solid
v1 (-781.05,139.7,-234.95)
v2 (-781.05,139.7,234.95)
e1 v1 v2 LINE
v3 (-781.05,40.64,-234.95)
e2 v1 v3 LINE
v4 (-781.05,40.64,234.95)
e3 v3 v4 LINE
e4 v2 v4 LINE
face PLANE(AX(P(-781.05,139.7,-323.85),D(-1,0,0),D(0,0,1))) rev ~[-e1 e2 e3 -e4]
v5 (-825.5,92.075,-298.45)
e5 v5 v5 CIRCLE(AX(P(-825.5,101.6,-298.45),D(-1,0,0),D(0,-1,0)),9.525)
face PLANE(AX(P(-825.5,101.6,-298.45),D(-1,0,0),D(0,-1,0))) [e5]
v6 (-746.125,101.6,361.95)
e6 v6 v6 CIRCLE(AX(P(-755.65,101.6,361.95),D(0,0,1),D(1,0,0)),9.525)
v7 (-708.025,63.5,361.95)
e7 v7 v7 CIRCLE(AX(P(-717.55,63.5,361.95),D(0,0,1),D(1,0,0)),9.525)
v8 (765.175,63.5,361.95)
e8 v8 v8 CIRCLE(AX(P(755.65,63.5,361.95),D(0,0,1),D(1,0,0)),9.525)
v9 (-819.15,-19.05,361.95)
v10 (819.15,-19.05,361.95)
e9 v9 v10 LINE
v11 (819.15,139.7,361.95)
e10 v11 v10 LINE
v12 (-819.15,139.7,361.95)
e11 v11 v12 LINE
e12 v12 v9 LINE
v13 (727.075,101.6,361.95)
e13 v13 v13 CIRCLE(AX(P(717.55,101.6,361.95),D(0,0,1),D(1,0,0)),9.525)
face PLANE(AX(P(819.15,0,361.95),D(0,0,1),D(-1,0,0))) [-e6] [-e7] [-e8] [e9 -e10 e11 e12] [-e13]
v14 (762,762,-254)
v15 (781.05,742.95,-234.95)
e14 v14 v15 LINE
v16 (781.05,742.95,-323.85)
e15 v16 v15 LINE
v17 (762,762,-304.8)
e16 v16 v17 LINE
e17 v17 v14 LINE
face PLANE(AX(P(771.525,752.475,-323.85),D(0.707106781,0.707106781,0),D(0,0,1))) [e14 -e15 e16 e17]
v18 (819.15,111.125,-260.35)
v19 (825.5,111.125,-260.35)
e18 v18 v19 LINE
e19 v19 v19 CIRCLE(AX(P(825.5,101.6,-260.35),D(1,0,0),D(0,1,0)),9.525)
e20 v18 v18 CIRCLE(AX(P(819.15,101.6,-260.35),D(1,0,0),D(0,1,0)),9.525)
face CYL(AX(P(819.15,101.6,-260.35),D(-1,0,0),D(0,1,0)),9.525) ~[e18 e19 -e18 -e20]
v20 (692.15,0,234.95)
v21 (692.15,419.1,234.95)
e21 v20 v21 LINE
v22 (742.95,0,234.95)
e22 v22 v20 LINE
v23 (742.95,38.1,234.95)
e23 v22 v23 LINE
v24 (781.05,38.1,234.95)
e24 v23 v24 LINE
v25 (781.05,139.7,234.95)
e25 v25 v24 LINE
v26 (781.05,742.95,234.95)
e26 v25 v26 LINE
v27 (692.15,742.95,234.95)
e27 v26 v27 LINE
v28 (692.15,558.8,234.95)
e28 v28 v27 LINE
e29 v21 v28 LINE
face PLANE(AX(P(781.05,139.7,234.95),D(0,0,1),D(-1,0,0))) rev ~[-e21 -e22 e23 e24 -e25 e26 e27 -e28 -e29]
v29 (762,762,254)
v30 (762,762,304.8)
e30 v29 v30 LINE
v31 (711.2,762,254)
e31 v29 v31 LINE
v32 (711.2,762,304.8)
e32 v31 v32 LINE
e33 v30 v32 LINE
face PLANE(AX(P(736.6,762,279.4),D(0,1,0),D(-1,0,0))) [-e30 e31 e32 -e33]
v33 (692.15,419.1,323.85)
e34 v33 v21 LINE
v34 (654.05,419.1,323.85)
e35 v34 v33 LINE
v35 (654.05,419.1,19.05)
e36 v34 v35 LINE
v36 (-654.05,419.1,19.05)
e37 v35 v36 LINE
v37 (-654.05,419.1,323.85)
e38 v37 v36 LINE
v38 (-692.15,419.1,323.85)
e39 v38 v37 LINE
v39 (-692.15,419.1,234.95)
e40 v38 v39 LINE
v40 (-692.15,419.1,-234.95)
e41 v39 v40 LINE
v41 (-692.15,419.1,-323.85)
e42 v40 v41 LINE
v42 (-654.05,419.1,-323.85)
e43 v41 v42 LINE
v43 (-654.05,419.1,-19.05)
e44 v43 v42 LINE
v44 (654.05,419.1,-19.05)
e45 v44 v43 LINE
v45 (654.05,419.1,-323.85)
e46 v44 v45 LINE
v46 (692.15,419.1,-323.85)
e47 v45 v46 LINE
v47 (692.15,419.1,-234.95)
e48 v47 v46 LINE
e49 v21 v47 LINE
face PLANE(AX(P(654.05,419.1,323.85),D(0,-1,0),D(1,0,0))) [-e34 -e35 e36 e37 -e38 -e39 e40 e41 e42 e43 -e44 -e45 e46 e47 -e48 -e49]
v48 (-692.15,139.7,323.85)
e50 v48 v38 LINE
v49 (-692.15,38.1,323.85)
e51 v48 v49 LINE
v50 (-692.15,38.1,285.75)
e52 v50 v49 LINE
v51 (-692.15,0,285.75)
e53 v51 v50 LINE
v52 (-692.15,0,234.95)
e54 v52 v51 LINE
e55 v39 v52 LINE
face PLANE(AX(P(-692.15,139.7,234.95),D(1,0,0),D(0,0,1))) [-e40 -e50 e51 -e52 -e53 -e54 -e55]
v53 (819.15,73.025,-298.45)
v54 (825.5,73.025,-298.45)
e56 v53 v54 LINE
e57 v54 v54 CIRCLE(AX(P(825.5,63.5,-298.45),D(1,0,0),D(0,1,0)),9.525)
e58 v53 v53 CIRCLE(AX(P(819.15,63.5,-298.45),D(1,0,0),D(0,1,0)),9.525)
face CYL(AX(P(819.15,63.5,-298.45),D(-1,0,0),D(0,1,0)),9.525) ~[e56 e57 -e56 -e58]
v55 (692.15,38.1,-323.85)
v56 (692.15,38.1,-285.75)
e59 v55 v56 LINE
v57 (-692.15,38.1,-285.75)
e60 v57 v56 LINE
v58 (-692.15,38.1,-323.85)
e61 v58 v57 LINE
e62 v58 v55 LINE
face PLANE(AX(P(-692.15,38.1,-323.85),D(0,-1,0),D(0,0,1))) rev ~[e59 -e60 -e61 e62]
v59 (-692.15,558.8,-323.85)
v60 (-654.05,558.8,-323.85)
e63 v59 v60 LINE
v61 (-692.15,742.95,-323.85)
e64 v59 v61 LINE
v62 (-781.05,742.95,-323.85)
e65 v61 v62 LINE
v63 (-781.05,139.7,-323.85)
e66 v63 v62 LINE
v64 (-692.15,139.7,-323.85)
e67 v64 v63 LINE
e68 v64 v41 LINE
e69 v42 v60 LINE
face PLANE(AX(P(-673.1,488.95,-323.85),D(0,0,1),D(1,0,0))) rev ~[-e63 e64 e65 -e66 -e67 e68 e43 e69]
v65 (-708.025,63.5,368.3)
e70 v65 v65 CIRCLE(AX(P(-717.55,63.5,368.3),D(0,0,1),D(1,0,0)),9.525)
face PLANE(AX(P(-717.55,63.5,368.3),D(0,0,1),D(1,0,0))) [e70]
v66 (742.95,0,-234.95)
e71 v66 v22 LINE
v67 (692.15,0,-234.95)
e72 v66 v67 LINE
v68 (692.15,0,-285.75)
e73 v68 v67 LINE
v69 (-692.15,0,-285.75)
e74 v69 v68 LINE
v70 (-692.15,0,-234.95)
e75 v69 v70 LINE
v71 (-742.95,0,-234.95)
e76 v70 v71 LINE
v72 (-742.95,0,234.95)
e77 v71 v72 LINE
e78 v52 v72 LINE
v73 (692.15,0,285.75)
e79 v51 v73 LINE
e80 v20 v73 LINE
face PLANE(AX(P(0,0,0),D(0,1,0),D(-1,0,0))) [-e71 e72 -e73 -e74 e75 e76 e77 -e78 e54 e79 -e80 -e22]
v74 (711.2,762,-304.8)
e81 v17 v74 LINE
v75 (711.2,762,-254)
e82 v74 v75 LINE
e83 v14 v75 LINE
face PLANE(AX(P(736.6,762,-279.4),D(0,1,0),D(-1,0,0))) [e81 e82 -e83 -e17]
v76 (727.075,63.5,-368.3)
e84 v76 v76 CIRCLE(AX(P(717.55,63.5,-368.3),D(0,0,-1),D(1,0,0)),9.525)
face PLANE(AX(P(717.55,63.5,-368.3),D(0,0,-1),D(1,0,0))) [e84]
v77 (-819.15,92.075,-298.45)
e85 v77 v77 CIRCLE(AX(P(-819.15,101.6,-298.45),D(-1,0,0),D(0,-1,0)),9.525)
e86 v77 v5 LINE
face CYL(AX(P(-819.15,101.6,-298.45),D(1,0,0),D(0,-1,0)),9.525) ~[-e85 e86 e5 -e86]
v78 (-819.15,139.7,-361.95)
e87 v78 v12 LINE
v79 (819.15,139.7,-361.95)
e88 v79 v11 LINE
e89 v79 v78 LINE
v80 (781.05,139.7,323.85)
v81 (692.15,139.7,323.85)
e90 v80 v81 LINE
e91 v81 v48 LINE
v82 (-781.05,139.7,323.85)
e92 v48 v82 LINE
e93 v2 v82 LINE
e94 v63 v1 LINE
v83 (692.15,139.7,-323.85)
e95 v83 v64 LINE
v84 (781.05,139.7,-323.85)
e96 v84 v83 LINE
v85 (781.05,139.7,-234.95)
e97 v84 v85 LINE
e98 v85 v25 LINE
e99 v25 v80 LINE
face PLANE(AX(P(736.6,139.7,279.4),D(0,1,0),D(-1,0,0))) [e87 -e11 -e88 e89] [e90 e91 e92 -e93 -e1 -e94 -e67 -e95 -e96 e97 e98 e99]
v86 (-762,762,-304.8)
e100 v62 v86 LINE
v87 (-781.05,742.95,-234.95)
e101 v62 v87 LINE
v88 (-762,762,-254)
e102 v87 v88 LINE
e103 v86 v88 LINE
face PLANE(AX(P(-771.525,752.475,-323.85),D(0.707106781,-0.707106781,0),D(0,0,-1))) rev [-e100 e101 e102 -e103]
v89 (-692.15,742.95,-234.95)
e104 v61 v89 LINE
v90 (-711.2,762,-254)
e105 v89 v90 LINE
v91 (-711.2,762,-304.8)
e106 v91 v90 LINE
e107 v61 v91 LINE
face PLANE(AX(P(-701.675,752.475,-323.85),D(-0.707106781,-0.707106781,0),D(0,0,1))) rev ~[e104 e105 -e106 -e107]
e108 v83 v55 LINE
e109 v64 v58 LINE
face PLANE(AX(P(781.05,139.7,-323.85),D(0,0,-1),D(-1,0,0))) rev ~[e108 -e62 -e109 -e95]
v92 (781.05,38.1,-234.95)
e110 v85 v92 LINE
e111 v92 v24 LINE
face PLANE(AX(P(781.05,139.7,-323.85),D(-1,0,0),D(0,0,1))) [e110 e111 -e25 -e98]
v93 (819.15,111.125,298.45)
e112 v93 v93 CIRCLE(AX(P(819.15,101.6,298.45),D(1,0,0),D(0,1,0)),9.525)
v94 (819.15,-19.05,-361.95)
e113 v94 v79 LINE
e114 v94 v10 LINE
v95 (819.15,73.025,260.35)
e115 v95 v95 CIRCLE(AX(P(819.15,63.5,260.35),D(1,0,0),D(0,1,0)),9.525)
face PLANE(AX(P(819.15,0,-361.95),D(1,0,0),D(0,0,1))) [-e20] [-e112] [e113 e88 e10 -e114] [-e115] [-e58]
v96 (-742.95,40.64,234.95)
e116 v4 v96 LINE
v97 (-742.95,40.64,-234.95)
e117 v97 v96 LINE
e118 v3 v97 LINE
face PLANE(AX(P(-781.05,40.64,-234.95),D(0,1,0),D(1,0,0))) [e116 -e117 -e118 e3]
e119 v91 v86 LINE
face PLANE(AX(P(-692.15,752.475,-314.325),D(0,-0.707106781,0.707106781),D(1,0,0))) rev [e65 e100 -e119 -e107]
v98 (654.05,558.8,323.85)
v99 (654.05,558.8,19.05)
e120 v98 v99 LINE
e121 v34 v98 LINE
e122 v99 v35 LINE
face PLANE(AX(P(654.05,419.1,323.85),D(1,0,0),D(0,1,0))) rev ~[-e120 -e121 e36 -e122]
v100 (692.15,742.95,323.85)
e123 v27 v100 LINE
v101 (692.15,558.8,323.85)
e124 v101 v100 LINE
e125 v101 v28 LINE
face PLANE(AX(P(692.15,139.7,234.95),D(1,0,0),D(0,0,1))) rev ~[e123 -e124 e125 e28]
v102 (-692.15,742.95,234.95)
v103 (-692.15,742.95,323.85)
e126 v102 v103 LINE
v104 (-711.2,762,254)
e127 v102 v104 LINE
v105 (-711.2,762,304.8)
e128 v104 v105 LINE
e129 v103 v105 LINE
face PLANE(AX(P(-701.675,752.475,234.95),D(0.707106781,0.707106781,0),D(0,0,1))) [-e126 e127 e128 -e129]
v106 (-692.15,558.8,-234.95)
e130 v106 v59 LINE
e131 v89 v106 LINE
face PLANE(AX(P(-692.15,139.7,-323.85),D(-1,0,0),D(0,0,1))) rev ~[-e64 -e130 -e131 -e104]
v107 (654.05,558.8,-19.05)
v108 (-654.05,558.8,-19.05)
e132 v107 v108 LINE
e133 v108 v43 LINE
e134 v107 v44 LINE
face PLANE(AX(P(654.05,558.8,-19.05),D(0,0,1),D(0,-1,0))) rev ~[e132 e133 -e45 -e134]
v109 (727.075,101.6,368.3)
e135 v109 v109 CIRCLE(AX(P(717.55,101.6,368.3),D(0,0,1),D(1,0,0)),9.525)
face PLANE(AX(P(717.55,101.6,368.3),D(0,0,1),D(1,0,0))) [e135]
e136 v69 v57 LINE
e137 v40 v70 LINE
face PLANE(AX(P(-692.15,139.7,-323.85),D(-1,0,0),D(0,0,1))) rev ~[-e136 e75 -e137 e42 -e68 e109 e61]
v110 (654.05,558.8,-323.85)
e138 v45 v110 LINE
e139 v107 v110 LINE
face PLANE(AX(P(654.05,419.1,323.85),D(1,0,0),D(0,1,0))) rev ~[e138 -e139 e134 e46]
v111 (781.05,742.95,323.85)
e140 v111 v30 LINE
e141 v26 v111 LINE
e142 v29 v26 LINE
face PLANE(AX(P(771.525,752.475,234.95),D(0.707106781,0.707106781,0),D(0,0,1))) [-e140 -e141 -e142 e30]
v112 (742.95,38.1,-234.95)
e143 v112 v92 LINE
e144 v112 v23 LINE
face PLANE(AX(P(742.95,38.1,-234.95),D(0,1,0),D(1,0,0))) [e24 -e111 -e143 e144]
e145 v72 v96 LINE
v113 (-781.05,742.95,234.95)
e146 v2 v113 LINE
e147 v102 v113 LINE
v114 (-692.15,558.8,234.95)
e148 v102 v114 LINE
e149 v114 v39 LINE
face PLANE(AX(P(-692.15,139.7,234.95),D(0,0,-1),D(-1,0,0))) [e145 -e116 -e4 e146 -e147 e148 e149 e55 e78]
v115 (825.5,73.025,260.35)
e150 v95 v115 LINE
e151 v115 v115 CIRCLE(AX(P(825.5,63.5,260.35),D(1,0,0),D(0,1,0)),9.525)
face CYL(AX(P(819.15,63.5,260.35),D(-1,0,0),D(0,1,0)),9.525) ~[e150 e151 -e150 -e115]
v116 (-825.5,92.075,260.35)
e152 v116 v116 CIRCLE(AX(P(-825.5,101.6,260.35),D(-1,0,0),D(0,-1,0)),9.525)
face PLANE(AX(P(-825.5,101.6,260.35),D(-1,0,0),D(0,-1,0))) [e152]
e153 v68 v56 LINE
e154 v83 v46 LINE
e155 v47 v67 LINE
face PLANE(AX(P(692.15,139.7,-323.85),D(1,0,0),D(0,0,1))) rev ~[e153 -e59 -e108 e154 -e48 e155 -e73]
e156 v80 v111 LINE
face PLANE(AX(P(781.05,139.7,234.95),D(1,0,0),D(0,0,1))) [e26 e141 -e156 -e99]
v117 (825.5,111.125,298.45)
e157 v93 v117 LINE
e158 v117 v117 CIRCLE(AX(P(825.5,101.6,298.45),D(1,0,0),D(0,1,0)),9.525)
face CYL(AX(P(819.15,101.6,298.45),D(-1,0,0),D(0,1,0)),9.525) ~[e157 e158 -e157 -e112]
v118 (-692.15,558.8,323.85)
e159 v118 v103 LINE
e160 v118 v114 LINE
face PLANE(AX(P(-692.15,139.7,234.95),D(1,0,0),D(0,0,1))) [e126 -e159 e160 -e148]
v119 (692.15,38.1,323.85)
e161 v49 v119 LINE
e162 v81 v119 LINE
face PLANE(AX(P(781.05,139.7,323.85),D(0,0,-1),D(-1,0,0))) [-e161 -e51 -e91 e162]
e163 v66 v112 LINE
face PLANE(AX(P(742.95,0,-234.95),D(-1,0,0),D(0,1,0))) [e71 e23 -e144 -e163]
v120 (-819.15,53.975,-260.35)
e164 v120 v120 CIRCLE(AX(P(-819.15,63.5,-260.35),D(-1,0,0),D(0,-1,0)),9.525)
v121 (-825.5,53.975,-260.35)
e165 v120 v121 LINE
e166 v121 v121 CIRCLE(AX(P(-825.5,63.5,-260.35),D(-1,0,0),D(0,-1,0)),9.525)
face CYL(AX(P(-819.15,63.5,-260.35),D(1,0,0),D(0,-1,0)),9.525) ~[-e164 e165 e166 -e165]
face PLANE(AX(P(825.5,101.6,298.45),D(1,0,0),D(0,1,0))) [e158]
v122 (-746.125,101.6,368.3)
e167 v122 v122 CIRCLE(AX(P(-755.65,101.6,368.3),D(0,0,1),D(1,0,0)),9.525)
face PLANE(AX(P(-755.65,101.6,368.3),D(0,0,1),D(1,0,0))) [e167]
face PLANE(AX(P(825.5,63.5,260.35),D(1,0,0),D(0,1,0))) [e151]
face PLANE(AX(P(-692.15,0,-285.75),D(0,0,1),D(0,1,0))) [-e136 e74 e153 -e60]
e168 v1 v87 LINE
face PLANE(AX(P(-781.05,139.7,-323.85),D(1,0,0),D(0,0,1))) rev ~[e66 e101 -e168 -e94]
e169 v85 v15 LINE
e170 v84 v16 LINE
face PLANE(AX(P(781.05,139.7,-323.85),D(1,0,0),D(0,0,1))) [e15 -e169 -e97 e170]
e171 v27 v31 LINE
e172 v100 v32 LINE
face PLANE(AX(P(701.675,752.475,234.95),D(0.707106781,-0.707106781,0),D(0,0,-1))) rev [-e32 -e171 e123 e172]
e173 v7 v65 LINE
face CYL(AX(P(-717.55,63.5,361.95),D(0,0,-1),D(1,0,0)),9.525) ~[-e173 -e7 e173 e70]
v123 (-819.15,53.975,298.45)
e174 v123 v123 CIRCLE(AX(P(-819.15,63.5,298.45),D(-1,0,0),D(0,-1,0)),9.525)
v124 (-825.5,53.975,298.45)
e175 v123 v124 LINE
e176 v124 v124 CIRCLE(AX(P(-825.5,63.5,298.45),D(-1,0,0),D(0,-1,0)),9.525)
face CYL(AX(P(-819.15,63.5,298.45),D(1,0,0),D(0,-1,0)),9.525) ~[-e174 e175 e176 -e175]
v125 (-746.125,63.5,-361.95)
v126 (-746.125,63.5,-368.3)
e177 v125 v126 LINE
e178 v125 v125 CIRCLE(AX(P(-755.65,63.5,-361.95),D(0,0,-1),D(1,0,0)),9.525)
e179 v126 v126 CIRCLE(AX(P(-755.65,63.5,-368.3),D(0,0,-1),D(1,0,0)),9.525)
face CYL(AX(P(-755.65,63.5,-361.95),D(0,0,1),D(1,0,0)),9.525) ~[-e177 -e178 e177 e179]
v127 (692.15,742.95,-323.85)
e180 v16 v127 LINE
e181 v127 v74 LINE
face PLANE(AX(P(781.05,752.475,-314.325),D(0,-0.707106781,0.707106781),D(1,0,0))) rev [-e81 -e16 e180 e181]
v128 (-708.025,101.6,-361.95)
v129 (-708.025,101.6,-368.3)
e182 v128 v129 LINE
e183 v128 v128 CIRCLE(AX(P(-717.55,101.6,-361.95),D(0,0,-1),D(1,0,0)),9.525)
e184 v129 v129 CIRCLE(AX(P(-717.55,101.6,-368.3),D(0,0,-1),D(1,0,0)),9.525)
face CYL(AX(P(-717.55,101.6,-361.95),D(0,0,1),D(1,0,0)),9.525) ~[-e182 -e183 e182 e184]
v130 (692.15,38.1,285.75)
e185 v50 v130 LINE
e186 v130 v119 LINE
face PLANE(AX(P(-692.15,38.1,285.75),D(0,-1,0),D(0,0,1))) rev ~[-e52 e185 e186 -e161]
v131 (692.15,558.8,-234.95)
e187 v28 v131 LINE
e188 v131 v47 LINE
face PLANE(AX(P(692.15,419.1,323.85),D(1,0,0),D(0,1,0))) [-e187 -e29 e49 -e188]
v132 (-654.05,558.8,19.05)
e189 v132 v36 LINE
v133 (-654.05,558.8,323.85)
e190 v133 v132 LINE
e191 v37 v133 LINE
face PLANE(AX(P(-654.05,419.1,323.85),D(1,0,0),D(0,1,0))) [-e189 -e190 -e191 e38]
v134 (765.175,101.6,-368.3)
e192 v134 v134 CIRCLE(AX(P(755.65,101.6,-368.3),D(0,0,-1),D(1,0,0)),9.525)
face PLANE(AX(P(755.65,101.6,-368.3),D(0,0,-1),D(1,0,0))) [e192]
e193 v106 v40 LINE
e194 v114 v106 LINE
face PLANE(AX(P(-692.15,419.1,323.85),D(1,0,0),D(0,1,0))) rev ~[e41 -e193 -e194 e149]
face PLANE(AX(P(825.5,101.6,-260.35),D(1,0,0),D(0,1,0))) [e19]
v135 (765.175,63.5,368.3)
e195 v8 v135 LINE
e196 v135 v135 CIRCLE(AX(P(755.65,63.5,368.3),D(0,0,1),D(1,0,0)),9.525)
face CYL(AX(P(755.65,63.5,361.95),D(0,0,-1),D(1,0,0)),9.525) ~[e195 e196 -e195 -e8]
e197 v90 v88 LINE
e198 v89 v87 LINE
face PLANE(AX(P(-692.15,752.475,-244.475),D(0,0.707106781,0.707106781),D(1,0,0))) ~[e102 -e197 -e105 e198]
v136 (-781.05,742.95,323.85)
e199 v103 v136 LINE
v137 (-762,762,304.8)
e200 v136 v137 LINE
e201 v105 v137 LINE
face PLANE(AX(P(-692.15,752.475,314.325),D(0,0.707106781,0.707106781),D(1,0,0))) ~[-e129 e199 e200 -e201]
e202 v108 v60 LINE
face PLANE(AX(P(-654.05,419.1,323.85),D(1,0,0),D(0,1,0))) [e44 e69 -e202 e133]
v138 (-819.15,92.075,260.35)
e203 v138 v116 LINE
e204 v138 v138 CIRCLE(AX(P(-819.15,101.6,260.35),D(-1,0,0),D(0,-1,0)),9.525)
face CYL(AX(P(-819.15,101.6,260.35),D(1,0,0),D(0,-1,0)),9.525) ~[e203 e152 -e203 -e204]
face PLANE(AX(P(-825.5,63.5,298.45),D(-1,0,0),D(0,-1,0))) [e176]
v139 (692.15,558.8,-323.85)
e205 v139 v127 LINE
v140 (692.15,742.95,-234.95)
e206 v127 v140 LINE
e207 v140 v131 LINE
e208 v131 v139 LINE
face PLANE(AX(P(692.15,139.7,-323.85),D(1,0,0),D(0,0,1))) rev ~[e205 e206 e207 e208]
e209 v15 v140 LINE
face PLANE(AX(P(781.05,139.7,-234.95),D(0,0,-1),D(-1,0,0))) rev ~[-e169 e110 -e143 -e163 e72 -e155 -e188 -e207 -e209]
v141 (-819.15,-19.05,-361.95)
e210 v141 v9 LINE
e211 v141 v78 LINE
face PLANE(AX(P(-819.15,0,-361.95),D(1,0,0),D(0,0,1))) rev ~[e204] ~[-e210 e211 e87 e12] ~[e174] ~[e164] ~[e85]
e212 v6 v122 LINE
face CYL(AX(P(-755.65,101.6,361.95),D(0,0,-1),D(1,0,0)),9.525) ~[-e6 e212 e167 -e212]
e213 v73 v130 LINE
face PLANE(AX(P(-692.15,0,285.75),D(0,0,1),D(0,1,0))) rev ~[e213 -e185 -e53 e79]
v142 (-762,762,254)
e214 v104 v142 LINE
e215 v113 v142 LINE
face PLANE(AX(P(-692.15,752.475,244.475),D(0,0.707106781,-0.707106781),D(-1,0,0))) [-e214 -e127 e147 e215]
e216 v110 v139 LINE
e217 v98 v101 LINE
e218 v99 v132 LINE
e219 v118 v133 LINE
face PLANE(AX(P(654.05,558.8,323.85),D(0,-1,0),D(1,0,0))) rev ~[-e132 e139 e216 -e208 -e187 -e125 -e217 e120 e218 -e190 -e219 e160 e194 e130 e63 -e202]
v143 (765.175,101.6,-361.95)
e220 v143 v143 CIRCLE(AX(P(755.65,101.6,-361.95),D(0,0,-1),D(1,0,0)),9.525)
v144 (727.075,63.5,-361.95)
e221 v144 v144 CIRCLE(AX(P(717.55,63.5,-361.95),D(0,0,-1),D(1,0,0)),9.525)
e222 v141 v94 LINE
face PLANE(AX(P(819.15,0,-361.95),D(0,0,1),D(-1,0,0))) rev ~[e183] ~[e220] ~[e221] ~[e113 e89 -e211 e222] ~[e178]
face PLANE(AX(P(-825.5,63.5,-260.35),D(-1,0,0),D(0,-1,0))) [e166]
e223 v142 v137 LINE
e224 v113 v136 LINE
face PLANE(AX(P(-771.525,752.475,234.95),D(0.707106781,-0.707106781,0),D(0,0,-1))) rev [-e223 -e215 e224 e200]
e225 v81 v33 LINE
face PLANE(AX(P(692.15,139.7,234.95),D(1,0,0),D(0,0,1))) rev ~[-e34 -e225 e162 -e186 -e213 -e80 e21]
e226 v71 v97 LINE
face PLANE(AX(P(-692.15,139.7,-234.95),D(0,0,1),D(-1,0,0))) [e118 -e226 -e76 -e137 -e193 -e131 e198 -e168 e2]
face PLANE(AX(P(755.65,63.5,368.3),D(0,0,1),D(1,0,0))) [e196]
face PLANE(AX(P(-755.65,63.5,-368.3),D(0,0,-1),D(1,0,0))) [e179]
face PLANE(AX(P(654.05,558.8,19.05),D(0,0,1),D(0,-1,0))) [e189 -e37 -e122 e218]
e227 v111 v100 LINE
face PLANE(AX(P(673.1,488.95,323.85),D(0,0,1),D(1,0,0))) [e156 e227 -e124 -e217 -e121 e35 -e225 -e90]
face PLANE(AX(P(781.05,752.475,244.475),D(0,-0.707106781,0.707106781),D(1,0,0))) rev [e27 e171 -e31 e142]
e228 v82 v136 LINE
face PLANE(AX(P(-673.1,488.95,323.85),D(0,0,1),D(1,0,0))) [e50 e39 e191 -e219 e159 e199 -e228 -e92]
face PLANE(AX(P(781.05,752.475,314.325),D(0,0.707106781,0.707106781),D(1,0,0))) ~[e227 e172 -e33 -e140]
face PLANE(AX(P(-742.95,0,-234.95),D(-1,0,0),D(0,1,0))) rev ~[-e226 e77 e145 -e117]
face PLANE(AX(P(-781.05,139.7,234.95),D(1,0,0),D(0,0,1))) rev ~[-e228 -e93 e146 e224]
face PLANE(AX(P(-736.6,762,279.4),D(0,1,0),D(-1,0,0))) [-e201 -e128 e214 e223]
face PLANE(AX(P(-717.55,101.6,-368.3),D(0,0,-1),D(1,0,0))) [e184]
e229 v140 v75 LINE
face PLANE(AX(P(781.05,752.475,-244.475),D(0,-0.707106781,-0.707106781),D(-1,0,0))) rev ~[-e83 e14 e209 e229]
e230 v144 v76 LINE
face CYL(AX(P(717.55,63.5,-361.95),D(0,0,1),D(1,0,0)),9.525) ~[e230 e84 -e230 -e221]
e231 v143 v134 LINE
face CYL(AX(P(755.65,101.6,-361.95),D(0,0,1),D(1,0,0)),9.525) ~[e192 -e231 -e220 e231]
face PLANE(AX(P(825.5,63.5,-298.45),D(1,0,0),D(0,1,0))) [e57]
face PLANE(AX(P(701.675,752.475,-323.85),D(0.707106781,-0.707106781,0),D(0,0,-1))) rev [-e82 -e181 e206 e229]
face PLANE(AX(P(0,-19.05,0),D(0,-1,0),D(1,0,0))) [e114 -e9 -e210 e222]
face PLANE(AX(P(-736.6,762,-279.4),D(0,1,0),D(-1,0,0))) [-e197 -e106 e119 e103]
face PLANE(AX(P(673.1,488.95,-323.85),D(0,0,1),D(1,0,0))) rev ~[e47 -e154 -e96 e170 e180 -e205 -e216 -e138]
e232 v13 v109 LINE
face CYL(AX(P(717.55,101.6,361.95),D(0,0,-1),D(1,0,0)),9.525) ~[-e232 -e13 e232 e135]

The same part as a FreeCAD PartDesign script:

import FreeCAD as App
import Part
import Sketcher
Q = App.Units.Quantity


def edges_at(feature, points):
    """Names of the edges that pass closest to the given points."""
    edges = feature.Shape.Edges
    near = lambda p: min(range(len(edges)), key=lambda i: edges[i].distToShape(Part.Vertex(*p))[0])
    return sorted({f"Edge{near(p) + 1}" for p in points})

doc = App.newDocument("Part")
params = doc.addObject("Spreadsheet::Sheet", "Params")
for row, (alias, value) in enumerate([
    ("sketch1_width", "64.5 in"),
    ("sketch1_height", "28.5 in"),
    ("pad1_length", "0.75 in"),
    ("sketch2_width", "64.5 in"),
    ("sketch2_height", "28.5 in"),
    ("pad2_length", "5.5 in"),
    ("sketch3_width", "61.5 in"),
    ("sketch3_height", "25.5 in"),
    ("pocket1_length", "5.5 in"),
    ("sketch4_width", "3.5 in"),
    ("pad3_length", "5.5 in"),
    ("pad3_length2", "24.5 in"),
    ("sketch5_width", "1.5 in"),
    ("sketch5_height", "5.5 in"),
    ("pad4_length", "25.5 in"),
    ("sketch6_width", "1.5 in"),
    ("sketch6_height", "5.5 in"),
    ("pad5_length", "25.5 in"),
    ("chamfer_size", "0.75 in"),
    ("sketch7_diameter", "0.75 in"),
    ("pad6_length", "0.25 in"),
    ("pad6_length2", "3 in"),
    ("sketch8_width", "5.5 in"),
    ("sketch8_height", "1.5 in"),
    ("pad7_length", "51.5 in"),
    ("sketch9_width", "1.5 in"),
    ("pad8_length", "54.5 in"),
    ("sketch10_width", "1.5 in"),
    ("pad9_length", "18.5 in"),
    ("sketch11_width", "1.5 in"),
    ("sketch11_height", "1.6 in"),
    ("pad10_length", "20.5 in"),
    ("sketch12_width", "1.5 in"),
    ("pad11_length", "54.5 in"),
    ("sketch13_diameter", "0.75 in"),
    ("pad12_length", "0.25 in"),
    ("pad12_length2", "3 in"),
    ("sketch14_diameter", "0.75 in"),
    ("pad13_length", "0.25 in"),
    ("pad13_length2", "3 in"),
    ("sketch15_diameter", "0.75 in"),
    ("pad14_length", "0.25 in"),
    ("pad14_length2", "3 in"),
    ("sketch16_diameter", "0.75 in"),
    ("pad15_length", "0.25 in"),
    ("pad15_length2", "3 in"),
], start=1):
    params.set(f"A{row}", alias)
    params.set(f"B{row}", "=" + value)
    params.setAlias(f"B{row}", alias)

body = doc.addObject("PartDesign::Body", "Body")

# Sketch on XZ plane
sketch1 = doc.addObject("Sketcher::SketchObject", "Sketch")
body.addObject(sketch1)
sketch1.AttachmentSupport = (doc.XZ_Plane, [""])
sketch1.MapMode = "FlatFace"
sketch1.addGeometry(Part.LineSegment(App.Vector(-819, 362, 0), App.Vector(-819, -362, 0)), False)
sketch1.addGeometry(Part.LineSegment(App.Vector(-819, -362, 0), App.Vector(819, -362, 0)), False)
sketch1.addGeometry(Part.LineSegment(App.Vector(819, -362, 0), App.Vector(819, 362, 0)), False)
sketch1.addGeometry(Part.LineSegment(App.Vector(819, 362, 0), App.Vector(-819, 362, 0)), False)
sketch1.addConstraint(Sketcher.Constraint("Coincident", 0, 2, 1, 1))
sketch1.addConstraint(Sketcher.Constraint("Coincident", 1, 2, 2, 1))
sketch1.addConstraint(Sketcher.Constraint("Coincident", 2, 2, 3, 1))
sketch1.addConstraint(Sketcher.Constraint("Coincident", 3, 2, 0, 1))
sketch1.addConstraint(Sketcher.Constraint("Vertical", 0))
sketch1.addConstraint(Sketcher.Constraint("Horizontal", 1))
sketch1.addConstraint(Sketcher.Constraint("Vertical", 2))
sketch1.addConstraint(Sketcher.Constraint("Horizontal", 3))
sketch1.addConstraint(Sketcher.Constraint("Symmetric", 0, 2, 2, 2, -1, 1))
sketch1.addConstraint(Sketcher.Constraint("DistanceX", 1, 1, 1, 2, Q("64.5 in")))
sketch1.addConstraint(Sketcher.Constraint("DistanceY", 0, 2, 0, 1, Q("28.5 in")))
sketch1.setExpression("Constraints[9]", "Params.sketch1_width")
sketch1.setExpression("Constraints[10]", "Params.sketch1_height")
pad1 = doc.addObject("PartDesign::Pad", "Pad")
body.addObject(pad1)
pad1.Profile = sketch1
pad1.setExpression("Length", "Params.pad1_length")

# Sketch on XZ plane
sketch2 = doc.addObject("Sketcher::SketchObject", "Sketch001")
body.addObject(sketch2)
sketch2.AttachmentSupport = (doc.XZ_Plane, [""])
sketch2.MapMode = "FlatFace"
sketch2.addGeometry(Part.LineSegment(App.Vector(819, 362, 0), App.Vector(819, -362, 0)), False)
sketch2.addGeometry(Part.LineSegment(App.Vector(819, -362, 0), App.Vector(-819, -362, 0)), False)
sketch2.addGeometry(Part.LineSegment(App.Vector(-819, -362, 0), App.Vector(-819, 362, 0)), False)
sketch2.addGeometry(Part.LineSegment(App.Vector(-819, 362, 0), App.Vector(819, 362, 0)), False)
sketch2.addConstraint(Sketcher.Constraint("Coincident", 0, 2, 1, 1))
sketch2.addConstraint(Sketcher.Constraint("Coincident", 1, 2, 2, 1))
sketch2.addConstraint(Sketcher.Constraint("Coincident", 2, 2, 3, 1))
sketch2.addConstraint(Sketcher.Constraint("Coincident", 3, 2, 0, 1))
sketch2.addConstraint(Sketcher.Constraint("Vertical", 0))
sketch2.addConstraint(Sketcher.Constraint("Horizontal", 1))
sketch2.addConstraint(Sketcher.Constraint("Vertical", 2))
sketch2.addConstraint(Sketcher.Constraint("Horizontal", 3))
sketch2.addConstraint(Sketcher.Constraint("Symmetric", 0, 2, 2, 2, -1, 1))
sketch2.addConstraint(Sketcher.Constraint("DistanceX", 1, 2, 1, 1, Q("64.5 in")))
sketch2.addConstraint(Sketcher.Constraint("DistanceY", 0, 2, 0, 1, Q("28.5 in")))
sketch2.setExpression("Constraints[9]", "Params.sketch2_width")
sketch2.setExpression("Constraints[10]", "Params.sketch2_height")
pad2 = doc.addObject("PartDesign::Pad", "Pad001")
body.addObject(pad2)
pad2.Profile = sketch2
pad2.setExpression("Length", "Params.pad2_length")
pad2.Reversed = True

# Sketch on XZ plane
sketch3 = doc.addObject("Sketcher::SketchObject", "Sketch002")
body.addObject(sketch3)
sketch3.AttachmentSupport = (doc.XZ_Plane, [""])
sketch3.MapMode = "FlatFace"
sketch3.AttachmentOffset = App.Placement(App.Vector(0, 0, -5.5 * 25.4), App.Rotation())
sketch3.addGeometry(Part.LineSegment(App.Vector(781, 324, 0), App.Vector(781, -324, 0)), False)
sketch3.addGeometry(Part.LineSegment(App.Vector(781, -324, 0), App.Vector(-781, -324, 0)), False)
sketch3.addGeometry(Part.LineSegment(App.Vector(-781, -324, 0), App.Vector(-781, 324, 0)), False)
sketch3.addGeometry(Part.LineSegment(App.Vector(-781, 324, 0), App.Vector(781, 324, 0)), False)
sketch3.addConstraint(Sketcher.Constraint("Coincident", 0, 2, 1, 1))
sketch3.addConstraint(Sketcher.Constraint("Coincident", 1, 2, 2, 1))
sketch3.addConstraint(Sketcher.Constraint("Coincident", 2, 2, 3, 1))
sketch3.addConstraint(Sketcher.Constraint("Coincident", 3, 2, 0, 1))
sketch3.addConstraint(Sketcher.Constraint("Vertical", 0))
sketch3.addConstraint(Sketcher.Constraint("Horizontal", 1))
sketch3.addConstraint(Sketcher.Constraint("Vertical", 2))
sketch3.addConstraint(Sketcher.Constraint("Horizontal", 3))
sketch3.addConstraint(Sketcher.Constraint("Symmetric", 0, 2, 2, 2, -1, 1))
sketch3.addConstraint(Sketcher.Constraint("DistanceX", 1, 2, 1, 1, Q("61.5 in")))
sketch3.addConstraint(Sketcher.Constraint("DistanceY", 0, 2, 0, 1, Q("25.5 in")))
sketch3.setExpression("Constraints[9]", "Params.sketch3_width")
sketch3.setExpression("Constraints[10]", "Params.sketch3_height")
pocket1 = doc.addObject("PartDesign::Pocket", "Pocket")
body.addObject(pocket1)
pocket1.Profile = sketch3
pocket1.setExpression("Length", "Params.pocket1_length")
pocket1.Reversed = True

# Sketch on XZ plane
sketch4 = doc.addObject("Sketcher::SketchObject", "Sketch003")
body.addObject(sketch4)
sketch4.AttachmentSupport = (doc.XZ_Plane, [""])
sketch4.MapMode = "FlatFace"
sketch4.AttachmentOffset = App.Placement(App.Vector(0, 0, -5.5 * 25.4), App.Rotation())
sketch4.addGeometry(Part.LineSegment(App.Vector(781, 324, 0), App.Vector(781, 235, 0)), False)
sketch4.addGeometry(Part.LineSegment(App.Vector(781, 235, 0), App.Vector(692, 235, 0)), False)
sketch4.addGeometry(Part.LineSegment(App.Vector(692, 235, 0), App.Vector(692, 324, 0)), False)
sketch4.addGeometry(Part.LineSegment(App.Vector(692, 324, 0), App.Vector(781, 324, 0)), False)
sketch4.addGeometry(Part.LineSegment(App.Vector(-692, 324, 0), App.Vector(-692, 235, 0)), False)
sketch4.addGeometry(Part.LineSegment(App.Vector(-692, 235, 0), App.Vector(-781, 235, 0)), False)
sketch4.addGeometry(Part.LineSegment(App.Vector(-781, 235, 0), App.Vector(-781, 324, 0)), False)
sketch4.addGeometry(Part.LineSegment(App.Vector(-781, 324, 0), App.Vector(-692, 324, 0)), False)
sketch4.addGeometry(Part.LineSegment(App.Vector(-692, -235, 0), App.Vector(-692, -324, 0)), False)
sketch4.addGeometry(Part.LineSegment(App.Vector(-692, -324, 0), App.Vector(-781, -324, 0)), False)
sketch4.addGeometry(Part.LineSegment(App.Vector(-781, -324, 0), App.Vector(-781, -235, 0)), False)
sketch4.addGeometry(Part.LineSegment(App.Vector(-781, -235, 0), App.Vector(-692, -235, 0)), False)
sketch4.addGeometry(Part.LineSegment(App.Vector(781, -235, 0), App.Vector(781, -324, 0)), False)
sketch4.addGeometry(Part.LineSegment(App.Vector(781, -324, 0), App.Vector(692, -324, 0)), False)
sketch4.addGeometry(Part.LineSegment(App.Vector(692, -324, 0), App.Vector(692, -235, 0)), False)
sketch4.addGeometry(Part.LineSegment(App.Vector(692, -235, 0), App.Vector(781, -235, 0)), False)
sketch4.addConstraint(Sketcher.Constraint("Coincident", 0, 2, 1, 1))
sketch4.addConstraint(Sketcher.Constraint("Coincident", 1, 2, 2, 1))
sketch4.addConstraint(Sketcher.Constraint("Coincident", 2, 2, 3, 1))
sketch4.addConstraint(Sketcher.Constraint("Coincident", 3, 2, 0, 1))
sketch4.addConstraint(Sketcher.Constraint("Coincident", 4, 2, 5, 1))
sketch4.addConstraint(Sketcher.Constraint("Coincident", 5, 2, 6, 1))
sketch4.addConstraint(Sketcher.Constraint("Coincident", 6, 2, 7, 1))
sketch4.addConstraint(Sketcher.Constraint("Coincident", 7, 2, 4, 1))
sketch4.addConstraint(Sketcher.Constraint("Coincident", 8, 2, 9, 1))
sketch4.addConstraint(Sketcher.Constraint("Coincident", 9, 2, 10, 1))
sketch4.addConstraint(Sketcher.Constraint("Coincident", 10, 2, 11, 1))
sketch4.addConstraint(Sketcher.Constraint("Coincident", 11, 2, 8, 1))
sketch4.addConstraint(Sketcher.Constraint("Coincident", 12, 2, 13, 1))
sketch4.addConstraint(Sketcher.Constraint("Coincident", 13, 2, 14, 1))
sketch4.addConstraint(Sketcher.Constraint("Coincident", 14, 2, 15, 1))
sketch4.addConstraint(Sketcher.Constraint("Coincident", 15, 2, 12, 1))
sketch4.addConstraint(Sketcher.Constraint("Vertical", 0))
sketch4.addConstraint(Sketcher.Constraint("Horizontal", 1))
sketch4.addConstraint(Sketcher.Constraint("Vertical", 2))
sketch4.addConstraint(Sketcher.Constraint("Horizontal", 3))
sketch4.addConstraint(Sketcher.Constraint("Vertical", 4))
sketch4.addConstraint(Sketcher.Constraint("Horizontal", 5))
sketch4.addConstraint(Sketcher.Constraint("Vertical", 6))
sketch4.addConstraint(Sketcher.Constraint("Horizontal", 7))
sketch4.addConstraint(Sketcher.Constraint("Vertical", 8))
sketch4.addConstraint(Sketcher.Constraint("Horizontal", 9))
sketch4.addConstraint(Sketcher.Constraint("Vertical", 10))
sketch4.addConstraint(Sketcher.Constraint("Horizontal", 11))
sketch4.addConstraint(Sketcher.Constraint("Vertical", 12))
sketch4.addConstraint(Sketcher.Constraint("Horizontal", 13))
sketch4.addConstraint(Sketcher.Constraint("Vertical", 14))
sketch4.addConstraint(Sketcher.Constraint("Horizontal", 15))
sketch4.addConstraint(Sketcher.Constraint("Symmetric", 2, 2, 8, 2, -1, 1))
sketch4.addConstraint(Sketcher.Constraint("Symmetric", 0, 2, 10, 2, -1, 1))
sketch4.addConstraint(Sketcher.Constraint("Symmetric", 6, 2, 12, 2, -1, 1))
sketch4.addConstraint(Sketcher.Constraint("Symmetric", 4, 2, 14, 2, -1, 1))
sketch4.addConstraint(Sketcher.Constraint("Symmetric", 1, 2, 4, 2, -2))
sketch4.addConstraint(Sketcher.Constraint("Symmetric", 3, 2, 6, 2, -2))
sketch4.addConstraint(Sketcher.Constraint("Equal", 15, 0))
sketch4.addConstraint(Sketcher.Constraint("DistanceX", 1, 2, 1, 1, Q("3.5 in")))
sketch4.addConstraint(Sketcher.Constraint("DistanceX", 4, 2, 0, 2, Q("58 in")))
sketch4.addConstraint(Sketcher.Constraint("DistanceY", 8, 2, 4, 2, Q("22 in")))
sketch4.setExpression("Constraints[39]", "Params.sketch4_width")
pad3 = doc.addObject("PartDesign::Pad", "Pad002")
body.addObject(pad3)
pad3.Profile = sketch4
pad3.Type = "TwoLengths"
pad3.setExpression("Length", "Params.pad3_length")
pad3.setExpression("Length2", "Params.pad3_length2")

# Sketch on XY plane
sketch5 = doc.addObject("Sketcher::SketchObject", "Sketch004")
body.addObject(sketch5)
sketch5.AttachmentSupport = (doc.XY_Plane, [""])
sketch5.MapMode = "FlatFace"
sketch5.AttachmentOffset = App.Placement(App.Vector(0, 0, 12.75 * 25.4), App.Rotation())
sketch5.addGeometry(Part.LineSegment(App.Vector(-692, 559, 0), App.Vector(-692, 419, 0)), False)
sketch5.addGeometry(Part.LineSegment(App.Vector(-692, 419, 0), App.Vector(-654, 419, 0)), False)
sketch5.addGeometry(Part.LineSegment(App.Vector(-654, 419, 0), App.Vector(-654, 559, 0)), False)
sketch5.addGeometry(Part.LineSegment(App.Vector(-654, 559, 0), App.Vector(-692, 559, 0)), False)
sketch5.addConstraint(Sketcher.Constraint("Coincident", 0, 2, 1, 1))
sketch5.addConstraint(Sketcher.Constraint("Coincident", 1, 2, 2, 1))
sketch5.addConstraint(Sketcher.Constraint("Coincident", 2, 2, 3, 1))
sketch5.addConstraint(Sketcher.Constraint("Coincident", 3, 2, 0, 1))
sketch5.addConstraint(Sketcher.Constraint("Vertical", 0))
sketch5.addConstraint(Sketcher.Constraint("Horizontal", 1))
sketch5.addConstraint(Sketcher.Constraint("Vertical", 2))
sketch5.addConstraint(Sketcher.Constraint("Horizontal", 3))
sketch5.addConstraint(Sketcher.Constraint("DistanceX", 1, 1, 1, 2, Q("1.5 in")))
sketch5.addConstraint(Sketcher.Constraint("DistanceY", 0, 2, 0, 1, Q("5.5 in")))
sketch5.addConstraint(Sketcher.Constraint("DistanceY", -1, 1, 2, 2, Q("22 in")))
sketch5.addConstraint(Sketcher.Constraint("DistanceX", 0, 2, -1, 1, Q("27.25 in")))
sketch5.setExpression("Constraints[8]", "Params.sketch5_width")
sketch5.setExpression("Constraints[9]", "Params.sketch5_height")
pad4 = doc.addObject("PartDesign::Pad", "Pad003")
body.addObject(pad4)
pad4.Profile = sketch5
pad4.setExpression("Length", "Params.pad4_length")
pad4.Reversed = True

# Sketch on XY plane
sketch6 = doc.addObject("Sketcher::SketchObject", "Sketch005")
body.addObject(sketch6)
sketch6.AttachmentSupport = (doc.XY_Plane, [""])
sketch6.MapMode = "FlatFace"
sketch6.AttachmentOffset = App.Placement(App.Vector(0, 0, 12.75 * 25.4), App.Rotation())
sketch6.addGeometry(Part.LineSegment(App.Vector(654, 559, 0), App.Vector(654, 419, 0)), False)
sketch6.addGeometry(Part.LineSegment(App.Vector(654, 419, 0), App.Vector(692, 419, 0)), False)
sketch6.addGeometry(Part.LineSegment(App.Vector(692, 419, 0), App.Vector(692, 559, 0)), False)
sketch6.addGeometry(Part.LineSegment(App.Vector(692, 559, 0), App.Vector(654, 559, 0)), False)
sketch6.addConstraint(Sketcher.Constraint("Coincident", 0, 2, 1, 1))
sketch6.addConstraint(Sketcher.Constraint("Coincident", 1, 2, 2, 1))
sketch6.addConstraint(Sketcher.Constraint("Coincident", 2, 2, 3, 1))
sketch6.addConstraint(Sketcher.Constraint("Coincident", 3, 2, 0, 1))
sketch6.addConstraint(Sketcher.Constraint("Vertical", 0))
sketch6.addConstraint(Sketcher.Constraint("Horizontal", 1))
sketch6.addConstraint(Sketcher.Constraint("Vertical", 2))
sketch6.addConstraint(Sketcher.Constraint("Horizontal", 3))
sketch6.addConstraint(Sketcher.Constraint("DistanceX", 1, 1, 1, 2, Q("1.5 in")))
sketch6.addConstraint(Sketcher.Constraint("DistanceY", 0, 2, 0, 1, Q("5.5 in")))
sketch6.addConstraint(Sketcher.Constraint("DistanceY", -1, 1, 2, 2, Q("22 in")))
sketch6.addConstraint(Sketcher.Constraint("DistanceX", -1, 1, 0, 2, Q("25.75 in")))
sketch6.setExpression("Constraints[8]", "Params.sketch6_width")
sketch6.setExpression("Constraints[9]", "Params.sketch6_height")
pad5 = doc.addObject("PartDesign::Pad", "Pad004")
body.addObject(pad5)
pad5.Profile = sketch6
pad5.setExpression("Length", "Params.pad5_length")
pad5.Reversed = True
doc.recompute()

chamfer = doc.addObject("PartDesign::Chamfer", "Chamfer")
body.addObject(chamfer)
chamfer.Base = (pad5, edges_at(pad5, [
    (736.6, 762, -323.85),
    (781.05, 762, -279.4),
    (736.6, 762, -234.95),
    (692.15, 762, -279.4),
    (736.6, 762, 323.85),
    (692.15, 762, 279.4),
    (781.05, 762, 279.4),
    (736.6, 762, 234.95),
    (-736.6, 762, 323.85),
    (-736.6, 762, 234.95),
    (-692.15, 762, 279.4),
    (-781.05, 762, 279.4),
    (-736.6, 762, -234.95),
    (-781.05, 762, -279.4),
    (-736.6, 762, -323.85),
    (-692.15, 762, -279.4),
]))
chamfer.setExpression("Size", "Params.chamfer_size")

# Sketch on XY plane
sketch7 = doc.addObject("Sketcher::SketchObject", "Sketch006")
body.addObject(sketch7)
sketch7.AttachmentSupport = (doc.XY_Plane, [""])
sketch7.MapMode = "FlatFace"
sketch7.AttachmentOffset = App.Placement(App.Vector(0, 0, 14.25 * 25.4), App.Rotation())
sketch7.addGeometry(Part.Circle(App.Vector(-756, 102, 0), App.Vector(0, 0, 1), 10), False)
sketch7.addGeometry(Part.Circle(App.Vector(-718, 64, 0), App.Vector(0, 0, 1), 10), False)
sketch7.addConstraint(Sketcher.Constraint("Equal", 0, 1))
sketch7.addConstraint(Sketcher.Constraint("Diameter", 0, Q("0.75 in")))
sketch7.addConstraint(Sketcher.Constraint("DistanceY", -1, 1, 0, 3, Q("4 in")))
sketch7.addConstraint(Sketcher.Constraint("DistanceY", -1, 1, 1, 3, Q("2.5 in")))
sketch7.addConstraint(Sketcher.Constraint("DistanceX", 0, 3, 1, 3, Q("1.5 in")))
sketch7.addConstraint(Sketcher.Constraint("DistanceX", 0, 3, -1, 1, Q("29.75 in")))
sketch7.setExpression("Constraints[1]", "Params.sketch7_diameter")
pad6 = doc.addObject("PartDesign::Pad", "Pad005")
body.addObject(pad6)
pad6.Profile = sketch7
pad6.Type = "TwoLengths"
pad6.setExpression("Length", "Params.pad6_length")
pad6.setExpression("Length2", "Params.pad6_length2")

# Sketch on YZ plane
sketch8 = doc.addObject("Sketcher::SketchObject", "Sketch007")
body.addObject(sketch8)
sketch8.AttachmentSupport = (doc.YZ_Plane, [""])
sketch8.MapMode = "FlatFace"
sketch8.AttachmentOffset = App.Placement(App.Vector(0, 0, 25.75 * 25.4), App.Rotation())
sketch8.addGeometry(Part.LineSegment(App.Vector(559, 19, 0), App.Vector(559, -19, 0)), False)
sketch8.addGeometry(Part.LineSegment(App.Vector(559, -19, 0), App.Vector(419, -19, 0)), False)
sketch8.addGeometry(Part.LineSegment(App.Vector(419, -19, 0), App.Vector(419, 19, 0)), False)
sketch8.addGeometry(Part.LineSegment(App.Vector(419, 19, 0), App.Vector(559, 19, 0)), False)
sketch8.addConstraint(Sketcher.Constraint("Coincident", 0, 2, 1, 1))
sketch8.addConstraint(Sketcher.Constraint("Coincident", 1, 2, 2, 1))
sketch8.addConstraint(Sketcher.Constraint("Coincident", 2, 2, 3, 1))
sketch8.addConstraint(Sketcher.Constraint("Coincident", 3, 2, 0, 1))
sketch8.addConstraint(Sketcher.Constraint("Vertical", 0))
sketch8.addConstraint(Sketcher.Constraint("Horizontal", 1))
sketch8.addConstraint(Sketcher.Constraint("Vertical", 2))
sketch8.addConstraint(Sketcher.Constraint("Horizontal", 3))
sketch8.addConstraint(Sketcher.Constraint("DistanceX", 1, 2, 1, 1, Q("5.5 in")))
sketch8.addConstraint(Sketcher.Constraint("DistanceY", 0, 2, 0, 1, Q("1.5 in")))
sketch8.addConstraint(Sketcher.Constraint("DistanceX", -1, 1, 0, 2, Q("22 in")))
sketch8.addConstraint(Sketcher.Constraint("DistanceY", 0, 2, -1, 1, Q("0.75 in")))
sketch8.setExpression("Constraints[8]", "Params.sketch8_width")
sketch8.setExpression("Constraints[9]", "Params.sketch8_height")
pad7 = doc.addObject("PartDesign::Pad", "Pad006")
body.addObject(pad7)
pad7.Profile = sketch8
pad7.setExpression("Length", "Params.pad7_length")
pad7.Reversed = True

# Sketch on YZ plane
sketch9 = doc.addObject("Sketcher::SketchObject", "Sketch008")
body.addObject(sketch9)
sketch9.AttachmentSupport = (doc.YZ_Plane, [""])
sketch9.MapMode = "FlatFace"
sketch9.AttachmentOffset = App.Placement(App.Vector(0, 0, -27.25 * 25.4), App.Rotation())
sketch9.addGeometry(Part.LineSegment(App.Vector(0, -286, 0), App.Vector(0, -324, 0)), False)
sketch9.addGeometry(Part.LineSegment(App.Vector(0, -324, 0), App.Vector(38, -324, 0)), False)
sketch9.addGeometry(Part.LineSegment(App.Vector(38, -324, 0), App.Vector(38, -286, 0)), False)
sketch9.addGeometry(Part.LineSegment(App.Vector(38, -286, 0), App.Vector(0, -286, 0)), False)
sketch9.addConstraint(Sketcher.Constraint("Coincident", 0, 2, 1, 1))
sketch9.addConstraint(Sketcher.Constraint("Coincident", 1, 2, 2, 1))
sketch9.addConstraint(Sketcher.Constraint("Coincident", 2, 2, 3, 1))
sketch9.addConstraint(Sketcher.Constraint("Coincident", 3, 2, 0, 1))
sketch9.addConstraint(Sketcher.Constraint("Vertical", 0))
sketch9.addConstraint(Sketcher.Constraint("Horizontal", 1))
sketch9.addConstraint(Sketcher.Constraint("Vertical", 2))
sketch9.addConstraint(Sketcher.Constraint("Horizontal", 3))
sketch9.addConstraint(Sketcher.Constraint("PointOnObject", 0, 2, -2))
sketch9.addConstraint(Sketcher.Constraint("Equal", 3, 0))
sketch9.addConstraint(Sketcher.Constraint("DistanceX", 1, 1, 1, 2, Q("1.5 in")))
sketch9.addConstraint(Sketcher.Constraint("DistanceY", 0, 2, -1, 1, Q("12.75 in")))
sketch9.setExpression("Constraints[10]", "Params.sketch9_width")
pad8 = doc.addObject("PartDesign::Pad", "Pad007")
body.addObject(pad8)
pad8.Profile = sketch9
pad8.setExpression("Length", "Params.pad8_length")

# Sketch on XY plane
sketch10 = doc.addObject("Sketcher::SketchObject", "Sketch009")
body.addObject(sketch10)
sketch10.AttachmentSupport = (doc.XY_Plane, [""])
sketch10.MapMode = "FlatFace"
sketch10.AttachmentOffset = App.Placement(App.Vector(0, 0, -9.25 * 25.4), App.Rotation())
sketch10.addGeometry(Part.LineSegment(App.Vector(743, 38, 0), App.Vector(743, 0, 0)), False)
sketch10.addGeometry(Part.LineSegment(App.Vector(743, 0, 0), App.Vector(781, 0, 0)), False)
sketch10.addGeometry(Part.LineSegment(App.Vector(781, 0, 0), App.Vector(781, 38, 0)), False)
sketch10.addGeometry(Part.LineSegment(App.Vector(781, 38, 0), App.Vector(743, 38, 0)), False)
sketch10.addConstraint(Sketcher.Constraint("Coincident", 0, 2, 1, 1))
sketch10.addConstraint(Sketcher.Constraint("Coincident", 1, 2, 2, 1))
sketch10.addConstraint(Sketcher.Constraint("Coincident", 2, 2, 3, 1))
sketch10.addConstraint(Sketcher.Constraint("Coincident", 3, 2, 0, 1))
sketch10.addConstraint(Sketcher.Constraint("Vertical", 0))
sketch10.addConstraint(Sketcher.Constraint("Horizontal", 1))
sketch10.addConstraint(Sketcher.Constraint("Vertical", 2))
sketch10.addConstraint(Sketcher.Constraint("Horizontal", 3))
sketch10.addConstraint(Sketcher.Constraint("PointOnObject", 0, 2, -1))
sketch10.addConstraint(Sketcher.Constraint("Equal", 3, 0))
sketch10.addConstraint(Sketcher.Constraint("DistanceX", 1, 1, 1, 2, Q("1.5 in")))
sketch10.addConstraint(Sketcher.Constraint("DistanceX", -1, 1, 0, 2, Q("29.25 in")))
sketch10.setExpression("Constraints[10]", "Params.sketch10_width")
pad9 = doc.addObject("PartDesign::Pad", "Pad008")
body.addObject(pad9)
pad9.Profile = sketch10
pad9.setExpression("Length", "Params.pad9_length")

# Sketch on XY plane
sketch11 = doc.addObject("Sketcher::SketchObject", "Sketch010")
body.addObject(sketch11)
sketch11.AttachmentSupport = (doc.XY_Plane, [""])
sketch11.MapMode = "FlatFace"
sketch11.AttachmentOffset = App.Placement(App.Vector(0, 0, -9.25 * 25.4), App.Rotation())
sketch11.addGeometry(Part.LineSegment(App.Vector(-781, 41, 0), App.Vector(-781, 0, 0)), False)
sketch11.addGeometry(Part.LineSegment(App.Vector(-781, 0, 0), App.Vector(-743, 0, 0)), False)
sketch11.addGeometry(Part.LineSegment(App.Vector(-743, 0, 0), App.Vector(-743, 41, 0)), False)
sketch11.addGeometry(Part.LineSegment(App.Vector(-743, 41, 0), App.Vector(-781, 41, 0)), False)
sketch11.addConstraint(Sketcher.Constraint("Coincident", 0, 2, 1, 1))
sketch11.addConstraint(Sketcher.Constraint("Coincident", 1, 2, 2, 1))
sketch11.addConstraint(Sketcher.Constraint("Coincident", 2, 2, 3, 1))
sketch11.addConstraint(Sketcher.Constraint("Coincident", 3, 2, 0, 1))
sketch11.addConstraint(Sketcher.Constraint("Vertical", 0))
sketch11.addConstraint(Sketcher.Constraint("Horizontal", 1))
sketch11.addConstraint(Sketcher.Constraint("Vertical", 2))
sketch11.addConstraint(Sketcher.Constraint("Horizontal", 3))
sketch11.addConstraint(Sketcher.Constraint("PointOnObject", 0, 2, -1))
sketch11.addConstraint(Sketcher.Constraint("DistanceX", 1, 1, 1, 2, Q("1.5 in")))
sketch11.addConstraint(Sketcher.Constraint("DistanceY", 0, 2, 0, 1, Q("1.6 in")))
sketch11.addConstraint(Sketcher.Constraint("DistanceX", 0, 2, -1, 1, Q("30.75 in")))
sketch11.setExpression("Constraints[9]", "Params.sketch11_width")
sketch11.setExpression("Constraints[10]", "Params.sketch11_height")
pad10 = doc.addObject("PartDesign::Pad", "Pad009")
body.addObject(pad10)
pad10.Profile = sketch11
pad10.setExpression("Length", "Params.pad10_length")

# Sketch on YZ plane
sketch12 = doc.addObject("Sketcher::SketchObject", "Sketch011")
body.addObject(sketch12)
sketch12.AttachmentSupport = (doc.YZ_Plane, [""])
sketch12.MapMode = "FlatFace"
sketch12.AttachmentOffset = App.Placement(App.Vector(0, 0, -27.25 * 25.4), App.Rotation())
sketch12.addGeometry(Part.LineSegment(App.Vector(0, 324, 0), App.Vector(0, 286, 0)), False)
sketch12.addGeometry(Part.LineSegment(App.Vector(0, 286, 0), App.Vector(38, 286, 0)), False)
sketch12.addGeometry(Part.LineSegment(App.Vector(38, 286, 0), App.Vector(38, 324, 0)), False)
sketch12.addGeometry(Part.LineSegment(App.Vector(38, 324, 0), App.Vector(0, 324, 0)), False)
sketch12.addConstraint(Sketcher.Constraint("Coincident", 0, 2, 1, 1))
sketch12.addConstraint(Sketcher.Constraint("Coincident", 1, 2, 2, 1))
sketch12.addConstraint(Sketcher.Constraint("Coincident", 2, 2, 3, 1))
sketch12.addConstraint(Sketcher.Constraint("Coincident", 3, 2, 0, 1))
sketch12.addConstraint(Sketcher.Constraint("Vertical", 0))
sketch12.addConstraint(Sketcher.Constraint("Horizontal", 1))
sketch12.addConstraint(Sketcher.Constraint("Vertical", 2))
sketch12.addConstraint(Sketcher.Constraint("Horizontal", 3))
sketch12.addConstraint(Sketcher.Constraint("PointOnObject", 0, 2, -2))
sketch12.addConstraint(Sketcher.Constraint("Equal", 3, 0))
sketch12.addConstraint(Sketcher.Constraint("DistanceX", 1, 1, 1, 2, Q("1.5 in")))
sketch12.addConstraint(Sketcher.Constraint("DistanceY", -1, 1, 0, 2, Q("11.25 in")))
sketch12.setExpression("Constraints[10]", "Params.sketch12_width")
pad11 = doc.addObject("PartDesign::Pad", "Pad010")
body.addObject(pad11)
pad11.Profile = sketch12
pad11.setExpression("Length", "Params.pad11_length")

# Sketch on XY plane
sketch13 = doc.addObject("Sketcher::SketchObject", "Sketch012")
body.addObject(sketch13)
sketch13.AttachmentSupport = (doc.XY_Plane, [""])
sketch13.MapMode = "FlatFace"
sketch13.AttachmentOffset = App.Placement(App.Vector(0, 0, 14.25 * 25.4), App.Rotation())
sketch13.addGeometry(Part.Circle(App.Vector(718, 102, 0), App.Vector(0, 0, 1), 10), False)
sketch13.addGeometry(Part.Circle(App.Vector(756, 64, 0), App.Vector(0, 0, 1), 10), False)
sketch13.addConstraint(Sketcher.Constraint("Equal", 0, 1))
sketch13.addConstraint(Sketcher.Constraint("Diameter", 0, Q("0.75 in")))
sketch13.addConstraint(Sketcher.Constraint("DistanceY", -1, 1, 0, 3, Q("4 in")))
sketch13.addConstraint(Sketcher.Constraint("DistanceY", -1, 1, 1, 3, Q("2.5 in")))
sketch13.addConstraint(Sketcher.Constraint("DistanceX", 0, 3, 1, 3, Q("1.5 in")))
sketch13.addConstraint(Sketcher.Constraint("DistanceX", -1, 1, 0, 3, Q("28.25 in")))
sketch13.setExpression("Constraints[1]", "Params.sketch13_diameter")
pad12 = doc.addObject("PartDesign::Pad", "Pad011")
body.addObject(pad12)
pad12.Profile = sketch13
pad12.Type = "TwoLengths"
pad12.setExpression("Length", "Params.pad12_length")
pad12.setExpression("Length2", "Params.pad12_length2")

# Sketch on YZ plane
sketch14 = doc.addObject("Sketcher::SketchObject", "Sketch013")
body.addObject(sketch14)
sketch14.AttachmentSupport = (doc.YZ_Plane, [""])
sketch14.MapMode = "FlatFace"
sketch14.AttachmentOffset = App.Placement(App.Vector(0, 0, -32.25 * 25.4), App.Rotation())
sketch14.addGeometry(Part.Circle(App.Vector(102, 260, 0), App.Vector(0, 0, 1), 10), False)
sketch14.addGeometry(Part.Circle(App.Vector(64, 298, 0), App.Vector(0, 0, 1), 10), False)
sketch14.addGeometry(Part.Circle(App.Vector(102, -298, 0), App.Vector(0, 0, 1), 10), False)
sketch14.addGeometry(Part.Circle(App.Vector(64, -260, 0), App.Vector(0, 0, 1), 10), False)
sketch14.addConstraint(Sketcher.Constraint("Equal", 0, 1))
sketch14.addConstraint(Sketcher.Constraint("Equal", 1, 2))
sketch14.addConstraint(Sketcher.Constraint("Equal", 2, 3))
sketch14.addConstraint(Sketcher.Constraint("Vertical", 0, 3, 2, 3))
sketch14.addConstraint(Sketcher.Constraint("Vertical", 1, 3, 3, 3))
sketch14.addConstraint(Sketcher.Constraint("Diameter", 0, Q("0.75 in")))
sketch14.addConstraint(Sketcher.Constraint("DistanceX", -1, 1, 0, 3, Q("4 in")))
sketch14.addConstraint(Sketcher.Constraint("DistanceY", 2, 3, 0, 3, Q("22 in")))
sketch14.addConstraint(Sketcher.Constraint("DistanceY", 3, 3, 1, 3, Q("22 in")))
sketch14.addConstraint(Sketcher.Constraint("DistanceX", -1, 1, 1, 3, Q("2.5 in")))
sketch14.addConstraint(Sketcher.Constraint("DistanceY", 0, 3, 1, 3, Q("1.5 in")))
sketch14.addConstraint(Sketcher.Constraint("DistanceY", -1, 1, 0, 3, Q("10.25 in")))
sketch14.setExpression("Constraints[5]", "Params.sketch14_diameter")
pad13 = doc.addObject("PartDesign::Pad", "Pad012")
body.addObject(pad13)
pad13.Profile = sketch14
pad13.Type = "TwoLengths"
pad13.setExpression("Length", "Params.pad13_length")
pad13.setExpression("Length2", "Params.pad13_length2")
pad13.Reversed = True

# Sketch on YZ plane
sketch15 = doc.addObject("Sketcher::SketchObject", "Sketch014")
body.addObject(sketch15)
sketch15.AttachmentSupport = (doc.YZ_Plane, [""])
sketch15.MapMode = "FlatFace"
sketch15.AttachmentOffset = App.Placement(App.Vector(0, 0, 32.25 * 25.4), App.Rotation())
sketch15.addGeometry(Part.Circle(App.Vector(102, 298, 0), App.Vector(0, 0, 1), 10), False)
sketch15.addGeometry(Part.Circle(App.Vector(102, -260, 0), App.Vector(0, 0, 1), 10), False)
sketch15.addGeometry(Part.Circle(App.Vector(64, 260, 0), App.Vector(0, 0, 1), 10), False)
sketch15.addGeometry(Part.Circle(App.Vector(64, -298, 0), App.Vector(0, 0, 1), 10), False)
sketch15.addConstraint(Sketcher.Constraint("Equal", 0, 1))
sketch15.addConstraint(Sketcher.Constraint("Equal", 1, 2))
sketch15.addConstraint(Sketcher.Constraint("Equal", 2, 3))
sketch15.addConstraint(Sketcher.Constraint("Vertical", 0, 3, 1, 3))
sketch15.addConstraint(Sketcher.Constraint("Vertical", 2, 3, 3, 3))
sketch15.addConstraint(Sketcher.Constraint("Diameter", 0, Q("0.75 in")))
sketch15.addConstraint(Sketcher.Constraint("DistanceX", -1, 1, 0, 3, Q("4 in")))
sketch15.addConstraint(Sketcher.Constraint("DistanceY", 1, 3, 0, 3, Q("22 in")))
sketch15.addConstraint(Sketcher.Constraint("DistanceY", 3, 3, 2, 3, Q("22 in")))
sketch15.addConstraint(Sketcher.Constraint("DistanceX", -1, 1, 2, 3, Q("2.5 in")))
sketch15.addConstraint(Sketcher.Constraint("DistanceY", 2, 3, 0, 3, Q("1.5 in")))
sketch15.addConstraint(Sketcher.Constraint("DistanceY", -1, 1, 0, 3, Q("11.75 in")))
sketch15.setExpression("Constraints[5]", "Params.sketch15_diameter")
pad14 = doc.addObject("PartDesign::Pad", "Pad013")
body.addObject(pad14)
pad14.Profile = sketch15
pad14.Type = "TwoLengths"
pad14.setExpression("Length", "Params.pad14_length")
pad14.setExpression("Length2", "Params.pad14_length2")

# Sketch on XY plane
sketch16 = doc.addObject("Sketcher::SketchObject", "Sketch015")
body.addObject(sketch16)
sketch16.AttachmentSupport = (doc.XY_Plane, [""])
sketch16.MapMode = "FlatFace"
sketch16.AttachmentOffset = App.Placement(App.Vector(0, 0, -14.25 * 25.4), App.Rotation())
sketch16.addGeometry(Part.Circle(App.Vector(-756, 64, 0), App.Vector(0, 0, 1), 10), False)
sketch16.addGeometry(Part.Circle(App.Vector(-718, 102, 0), App.Vector(0, 0, 1), 10), False)
sketch16.addGeometry(Part.Circle(App.Vector(718, 64, 0), App.Vector(0, 0, 1), 10), False)
sketch16.addGeometry(Part.Circle(App.Vector(756, 102, 0), App.Vector(0, 0, 1), 10), False)
sketch16.addConstraint(Sketcher.Constraint("Equal", 0, 1))
sketch16.addConstraint(Sketcher.Constraint("Equal", 1, 2))
sketch16.addConstraint(Sketcher.Constraint("Equal", 2, 3))
sketch16.addConstraint(Sketcher.Constraint("Horizontal", 0, 3, 2, 3))
sketch16.addConstraint(Sketcher.Constraint("Horizontal", 1, 3, 3, 3))
sketch16.addConstraint(Sketcher.Constraint("Diameter", 0, Q("0.75 in")))
sketch16.addConstraint(Sketcher.Constraint("DistanceY", -1, 1, 1, 3, Q("4 in")))
sketch16.addConstraint(Sketcher.Constraint("DistanceX", 0, 3, 2, 3, Q("58 in")))
sketch16.addConstraint(Sketcher.Constraint("DistanceX", 1, 3, 3, 3, Q("58 in")))
sketch16.addConstraint(Sketcher.Constraint("DistanceY", -1, 1, 0, 3, Q("2.5 in")))
sketch16.addConstraint(Sketcher.Constraint("DistanceX", 0, 3, 1, 3, Q("1.5 in")))
sketch16.addConstraint(Sketcher.Constraint("DistanceX", 0, 3, -1, 1, Q("29.75 in")))
sketch16.setExpression("Constraints[5]", "Params.sketch16_diameter")
pad15 = doc.addObject("PartDesign::Pad", "Pad014")
body.addObject(pad15)
pad15.Profile = sketch16
pad15.Type = "TwoLengths"
pad15.setExpression("Length", "Params.pad15_length")
pad15.setExpression("Length2", "Params.pad15_length2")
pad15.Reversed = True

doc.recompute()
